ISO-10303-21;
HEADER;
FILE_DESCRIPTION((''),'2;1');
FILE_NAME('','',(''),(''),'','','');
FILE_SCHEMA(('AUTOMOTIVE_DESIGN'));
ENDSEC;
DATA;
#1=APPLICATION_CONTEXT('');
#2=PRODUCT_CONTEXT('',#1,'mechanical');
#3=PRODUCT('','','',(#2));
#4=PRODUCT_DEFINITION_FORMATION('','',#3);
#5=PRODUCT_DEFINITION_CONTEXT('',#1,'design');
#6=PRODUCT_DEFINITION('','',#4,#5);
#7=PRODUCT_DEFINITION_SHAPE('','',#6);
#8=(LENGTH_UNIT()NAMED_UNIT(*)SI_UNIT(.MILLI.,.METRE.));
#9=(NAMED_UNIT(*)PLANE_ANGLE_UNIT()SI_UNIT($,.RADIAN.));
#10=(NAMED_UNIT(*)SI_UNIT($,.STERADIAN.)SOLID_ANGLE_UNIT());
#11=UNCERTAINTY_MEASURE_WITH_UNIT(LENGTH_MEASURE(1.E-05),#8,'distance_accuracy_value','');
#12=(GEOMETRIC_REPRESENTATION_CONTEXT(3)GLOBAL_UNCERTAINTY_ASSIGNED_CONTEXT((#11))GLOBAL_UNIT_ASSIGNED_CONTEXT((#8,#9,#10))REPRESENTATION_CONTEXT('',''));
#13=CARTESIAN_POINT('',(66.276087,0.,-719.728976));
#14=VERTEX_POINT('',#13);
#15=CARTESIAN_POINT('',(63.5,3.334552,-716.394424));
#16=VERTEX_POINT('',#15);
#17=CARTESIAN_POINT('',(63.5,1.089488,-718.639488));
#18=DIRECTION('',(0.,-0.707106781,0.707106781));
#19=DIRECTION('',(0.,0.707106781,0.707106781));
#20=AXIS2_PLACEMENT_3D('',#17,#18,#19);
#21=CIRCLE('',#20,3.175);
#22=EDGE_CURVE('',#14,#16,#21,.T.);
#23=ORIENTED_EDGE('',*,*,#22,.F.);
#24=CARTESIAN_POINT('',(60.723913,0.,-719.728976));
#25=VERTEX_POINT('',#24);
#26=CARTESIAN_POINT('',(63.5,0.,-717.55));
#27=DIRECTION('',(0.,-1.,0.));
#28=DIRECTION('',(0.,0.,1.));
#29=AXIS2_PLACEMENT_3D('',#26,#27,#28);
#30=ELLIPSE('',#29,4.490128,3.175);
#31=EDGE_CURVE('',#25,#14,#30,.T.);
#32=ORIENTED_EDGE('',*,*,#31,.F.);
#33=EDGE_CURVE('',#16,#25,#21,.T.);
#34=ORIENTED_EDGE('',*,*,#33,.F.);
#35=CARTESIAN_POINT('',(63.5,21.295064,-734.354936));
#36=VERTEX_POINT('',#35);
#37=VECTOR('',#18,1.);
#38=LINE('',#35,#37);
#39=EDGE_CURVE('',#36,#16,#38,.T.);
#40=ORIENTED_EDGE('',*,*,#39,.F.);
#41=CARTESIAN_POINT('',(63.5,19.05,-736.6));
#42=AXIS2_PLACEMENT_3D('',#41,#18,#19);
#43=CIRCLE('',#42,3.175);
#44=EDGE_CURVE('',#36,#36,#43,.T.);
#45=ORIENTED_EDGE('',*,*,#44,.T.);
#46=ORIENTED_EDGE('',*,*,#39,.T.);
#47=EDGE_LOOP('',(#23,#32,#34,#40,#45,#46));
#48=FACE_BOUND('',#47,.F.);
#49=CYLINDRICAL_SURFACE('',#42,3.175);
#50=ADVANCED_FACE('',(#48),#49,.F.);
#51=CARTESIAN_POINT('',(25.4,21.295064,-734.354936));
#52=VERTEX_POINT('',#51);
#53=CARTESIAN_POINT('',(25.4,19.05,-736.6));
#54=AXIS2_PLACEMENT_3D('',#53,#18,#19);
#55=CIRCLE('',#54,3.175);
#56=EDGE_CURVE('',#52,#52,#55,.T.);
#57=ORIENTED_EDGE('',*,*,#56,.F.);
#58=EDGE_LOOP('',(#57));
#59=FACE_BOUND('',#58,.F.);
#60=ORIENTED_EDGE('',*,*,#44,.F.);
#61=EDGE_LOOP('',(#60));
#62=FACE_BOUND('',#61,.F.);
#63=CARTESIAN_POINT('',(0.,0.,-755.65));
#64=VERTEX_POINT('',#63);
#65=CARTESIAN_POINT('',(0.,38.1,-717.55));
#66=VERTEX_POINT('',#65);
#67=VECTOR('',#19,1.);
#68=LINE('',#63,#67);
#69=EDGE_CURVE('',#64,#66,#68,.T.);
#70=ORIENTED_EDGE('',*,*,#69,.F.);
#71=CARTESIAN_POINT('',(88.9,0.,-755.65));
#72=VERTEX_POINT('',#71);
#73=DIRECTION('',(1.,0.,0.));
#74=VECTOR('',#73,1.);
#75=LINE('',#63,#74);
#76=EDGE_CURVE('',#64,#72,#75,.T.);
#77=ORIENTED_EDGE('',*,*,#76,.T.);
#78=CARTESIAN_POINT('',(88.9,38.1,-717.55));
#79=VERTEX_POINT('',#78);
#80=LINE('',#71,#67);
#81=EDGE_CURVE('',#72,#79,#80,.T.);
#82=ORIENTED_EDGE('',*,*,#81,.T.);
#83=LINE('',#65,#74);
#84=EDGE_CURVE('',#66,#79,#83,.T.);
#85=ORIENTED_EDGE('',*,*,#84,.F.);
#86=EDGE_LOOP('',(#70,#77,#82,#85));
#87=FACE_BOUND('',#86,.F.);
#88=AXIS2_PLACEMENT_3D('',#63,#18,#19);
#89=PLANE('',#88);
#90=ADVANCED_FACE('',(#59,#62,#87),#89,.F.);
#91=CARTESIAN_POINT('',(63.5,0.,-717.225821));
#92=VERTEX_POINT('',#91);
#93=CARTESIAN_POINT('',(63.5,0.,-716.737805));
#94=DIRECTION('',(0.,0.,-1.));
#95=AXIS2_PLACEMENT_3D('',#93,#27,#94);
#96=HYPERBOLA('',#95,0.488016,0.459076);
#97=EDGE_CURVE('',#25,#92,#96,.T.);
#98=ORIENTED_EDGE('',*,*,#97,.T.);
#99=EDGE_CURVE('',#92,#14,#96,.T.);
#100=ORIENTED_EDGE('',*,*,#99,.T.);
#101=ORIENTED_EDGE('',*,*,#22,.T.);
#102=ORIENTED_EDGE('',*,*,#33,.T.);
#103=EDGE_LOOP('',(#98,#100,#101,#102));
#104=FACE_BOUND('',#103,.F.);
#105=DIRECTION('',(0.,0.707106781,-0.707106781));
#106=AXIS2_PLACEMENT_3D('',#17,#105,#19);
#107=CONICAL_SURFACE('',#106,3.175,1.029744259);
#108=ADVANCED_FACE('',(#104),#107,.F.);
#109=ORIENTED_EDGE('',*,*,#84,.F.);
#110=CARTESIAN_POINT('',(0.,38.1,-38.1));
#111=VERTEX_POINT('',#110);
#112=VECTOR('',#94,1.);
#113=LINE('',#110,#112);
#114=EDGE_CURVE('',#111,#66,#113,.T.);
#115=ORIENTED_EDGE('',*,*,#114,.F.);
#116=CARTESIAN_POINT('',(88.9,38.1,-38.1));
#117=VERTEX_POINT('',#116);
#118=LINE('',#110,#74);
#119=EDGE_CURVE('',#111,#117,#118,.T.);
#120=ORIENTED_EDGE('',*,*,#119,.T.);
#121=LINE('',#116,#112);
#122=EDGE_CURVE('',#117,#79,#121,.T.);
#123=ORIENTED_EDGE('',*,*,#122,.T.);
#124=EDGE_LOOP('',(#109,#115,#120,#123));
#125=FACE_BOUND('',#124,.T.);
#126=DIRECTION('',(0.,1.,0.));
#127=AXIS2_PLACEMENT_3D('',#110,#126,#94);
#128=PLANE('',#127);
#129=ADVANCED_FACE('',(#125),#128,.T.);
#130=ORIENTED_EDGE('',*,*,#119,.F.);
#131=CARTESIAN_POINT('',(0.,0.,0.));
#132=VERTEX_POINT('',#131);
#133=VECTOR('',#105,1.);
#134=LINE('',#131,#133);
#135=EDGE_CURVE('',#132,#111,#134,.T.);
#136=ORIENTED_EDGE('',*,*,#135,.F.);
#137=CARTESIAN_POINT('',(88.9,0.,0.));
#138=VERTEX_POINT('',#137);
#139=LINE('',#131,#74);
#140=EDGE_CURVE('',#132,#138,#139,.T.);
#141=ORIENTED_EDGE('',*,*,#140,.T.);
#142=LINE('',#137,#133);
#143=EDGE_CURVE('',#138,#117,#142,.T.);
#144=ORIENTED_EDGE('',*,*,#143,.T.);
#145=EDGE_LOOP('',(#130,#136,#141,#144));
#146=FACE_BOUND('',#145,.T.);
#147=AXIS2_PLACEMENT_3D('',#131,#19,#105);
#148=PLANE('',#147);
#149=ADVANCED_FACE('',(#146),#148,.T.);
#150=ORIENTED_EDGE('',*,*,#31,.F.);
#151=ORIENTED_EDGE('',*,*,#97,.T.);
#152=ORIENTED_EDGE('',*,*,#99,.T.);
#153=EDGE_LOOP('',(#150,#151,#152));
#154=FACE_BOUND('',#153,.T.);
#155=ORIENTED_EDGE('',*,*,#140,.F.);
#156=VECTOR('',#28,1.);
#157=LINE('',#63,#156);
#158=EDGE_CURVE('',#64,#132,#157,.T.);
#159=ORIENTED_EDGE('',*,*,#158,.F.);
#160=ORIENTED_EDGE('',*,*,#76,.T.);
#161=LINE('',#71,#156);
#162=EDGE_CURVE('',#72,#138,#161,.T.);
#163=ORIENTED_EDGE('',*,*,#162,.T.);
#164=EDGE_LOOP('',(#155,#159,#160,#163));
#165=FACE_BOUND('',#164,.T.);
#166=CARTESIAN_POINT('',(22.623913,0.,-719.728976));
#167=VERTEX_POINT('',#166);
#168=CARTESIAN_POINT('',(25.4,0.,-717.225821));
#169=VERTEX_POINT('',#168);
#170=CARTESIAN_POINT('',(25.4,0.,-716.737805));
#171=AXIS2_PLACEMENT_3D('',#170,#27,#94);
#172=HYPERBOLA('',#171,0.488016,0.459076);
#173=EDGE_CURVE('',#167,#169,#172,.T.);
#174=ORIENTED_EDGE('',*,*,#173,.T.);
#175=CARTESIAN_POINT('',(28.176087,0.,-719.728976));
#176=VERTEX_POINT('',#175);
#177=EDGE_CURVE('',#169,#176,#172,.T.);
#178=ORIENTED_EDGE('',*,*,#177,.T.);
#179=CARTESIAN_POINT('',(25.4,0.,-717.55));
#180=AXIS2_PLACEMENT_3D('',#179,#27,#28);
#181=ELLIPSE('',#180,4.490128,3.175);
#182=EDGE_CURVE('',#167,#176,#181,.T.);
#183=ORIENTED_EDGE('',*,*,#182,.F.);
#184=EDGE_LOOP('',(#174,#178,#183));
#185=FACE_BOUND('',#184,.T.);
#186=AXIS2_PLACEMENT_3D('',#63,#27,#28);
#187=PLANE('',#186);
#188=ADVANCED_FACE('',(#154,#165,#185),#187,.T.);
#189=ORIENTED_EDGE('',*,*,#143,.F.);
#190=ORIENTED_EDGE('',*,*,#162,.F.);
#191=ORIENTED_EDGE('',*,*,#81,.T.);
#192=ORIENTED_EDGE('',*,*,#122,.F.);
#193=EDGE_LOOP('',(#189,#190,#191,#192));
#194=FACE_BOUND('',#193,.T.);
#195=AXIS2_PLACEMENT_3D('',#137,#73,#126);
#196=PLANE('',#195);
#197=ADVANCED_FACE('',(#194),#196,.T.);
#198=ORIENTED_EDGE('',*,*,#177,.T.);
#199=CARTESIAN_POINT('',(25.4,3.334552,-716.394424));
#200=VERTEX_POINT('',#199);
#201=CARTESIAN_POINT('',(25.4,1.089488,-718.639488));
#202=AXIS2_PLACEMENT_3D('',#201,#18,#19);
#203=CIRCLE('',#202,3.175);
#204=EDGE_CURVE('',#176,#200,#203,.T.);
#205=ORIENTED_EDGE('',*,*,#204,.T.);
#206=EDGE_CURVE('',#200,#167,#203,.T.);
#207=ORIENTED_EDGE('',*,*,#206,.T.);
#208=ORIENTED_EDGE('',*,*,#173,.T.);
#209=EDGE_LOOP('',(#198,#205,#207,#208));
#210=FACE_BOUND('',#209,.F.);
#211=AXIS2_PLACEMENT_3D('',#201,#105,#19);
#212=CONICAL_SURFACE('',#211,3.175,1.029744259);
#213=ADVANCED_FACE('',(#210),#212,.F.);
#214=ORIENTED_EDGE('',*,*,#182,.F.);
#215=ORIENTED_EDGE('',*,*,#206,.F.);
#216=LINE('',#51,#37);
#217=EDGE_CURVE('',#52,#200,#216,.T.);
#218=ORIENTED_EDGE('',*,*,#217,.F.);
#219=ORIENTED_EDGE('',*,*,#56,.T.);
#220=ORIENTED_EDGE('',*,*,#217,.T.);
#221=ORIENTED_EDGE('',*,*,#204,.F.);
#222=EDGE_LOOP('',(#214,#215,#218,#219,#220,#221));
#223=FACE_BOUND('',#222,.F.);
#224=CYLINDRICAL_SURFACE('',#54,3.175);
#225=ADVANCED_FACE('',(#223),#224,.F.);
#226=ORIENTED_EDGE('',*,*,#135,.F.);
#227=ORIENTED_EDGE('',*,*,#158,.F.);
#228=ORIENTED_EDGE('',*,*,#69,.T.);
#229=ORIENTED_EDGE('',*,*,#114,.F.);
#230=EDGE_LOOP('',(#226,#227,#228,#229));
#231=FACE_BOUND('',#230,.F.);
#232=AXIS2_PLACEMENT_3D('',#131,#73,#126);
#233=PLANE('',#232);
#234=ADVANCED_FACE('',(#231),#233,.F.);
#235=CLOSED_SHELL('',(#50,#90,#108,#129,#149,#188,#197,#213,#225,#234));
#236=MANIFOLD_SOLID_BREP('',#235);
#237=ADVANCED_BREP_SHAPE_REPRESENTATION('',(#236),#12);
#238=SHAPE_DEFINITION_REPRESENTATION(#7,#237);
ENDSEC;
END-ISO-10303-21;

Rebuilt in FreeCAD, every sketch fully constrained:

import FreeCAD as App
import Part
import Sketcher
Q = App.Units.Quantity

doc = App.newDocument("Part")
body = doc.addObject("PartDesign::Body", "Body")

# Sketch on YZ plane
sketch1 = body.newObject("Sketcher::SketchObject", "Sketch")
sketch1.AttachmentSupport = (doc.getObject("YZ_Plane"), [""])
sketch1.MapMode = "FlatFace"
sketch1.addGeometry([
    Part.LineSegment(App.Vector(38.1, -717.55, 0), App.Vector(38.1, -38.1, 0)),
    Part.LineSegment(App.Vector(38.1, -38.1, 0), App.Vector(0, 0, 0)),
    Part.LineSegment(App.Vector(0, 0, 0), App.Vector(0, -755.65, 0)),
    Part.LineSegment(App.Vector(0, -755.65, 0), App.Vector(38.1, -717.55, 0)),
], False)
sketch1.addConstraint([
    Sketcher.Constraint("Coincident", 0, 2, 1, 1),
    Sketcher.Constraint("Coincident", 1, 2, 2, 1),
    Sketcher.Constraint("Coincident", 2, 2, 3, 1),
    Sketcher.Constraint("Coincident", 3, 2, 0, 1),
    Sketcher.Constraint("Vertical", 0),
    Sketcher.Constraint("Vertical", 2),
    Sketcher.Constraint("Coincident", 1, 2, -1, 1),
    Sketcher.Constraint("Perpendicular", 1, 3),
    Sketcher.Constraint("Equal", 1, 3),
    Sketcher.Constraint("DistanceY", 2, 2, 2, 1, Q("29.75 in")),
    Sketcher.Constraint("DistanceY", 0, 1, 0, 2, Q("26.75 in")),
])
pad1 = body.newObject("PartDesign::Pad", "Pad")
pad1.Profile = sketch1
pad1.Length = Q("3.5 in")

# Sketch on an angled plane
sketch2 = body.newObject("Sketcher::SketchObject", "Sketch001")
sketch2.Placement = App.Placement(App.Vector(0, 377.825, -377.825), App.Rotation(App.Vector(0, 0.707106781, 0.707106781), App.Vector(0.999999999, 0, 0), App.Vector(0, 0.707106781, -0.707106781), "ZXY"))
sketch2.addGeometry([
    Part.Circle(App.Vector(-507.384471, 63.5, 0), App.Vector(0, 0, 1), 3.175),
    Part.Circle(App.Vector(-507.384471, 25.4, 0), App.Vector(0, 0, 1), 3.175),
], False)
sketch2.addConstraint([
    Sketcher.Constraint("Equal", 0, 1),
    Sketcher.Constraint("Vertical", 0, 3, 1, 3),
    Sketcher.Constraint("Diameter", 0, Q("0.25 in")),
    Sketcher.Constraint("DistanceY", -1, 1, 1, 3, Q("1 in")),
    Sketcher.Constraint("DistanceY", -1, 1, 0, 3, Q("2.5 in")),
    Sketcher.Constraint("DistanceX", 0, 3, -1, 1, Q("507.3845 mm")),
])
doc.recompute()
hole = body.newObject("PartDesign::Hole", "Hole")
hole.Profile = sketch2
hole.ThreadType = "None"
hole.Diameter = Q("0.25 in")
hole.DepthType = "Dimension"
hole.Depth = Q("1 in")
hole.DrillPoint = "Angled"
hole.DrillPointAngle = 118

doc.recompute()
